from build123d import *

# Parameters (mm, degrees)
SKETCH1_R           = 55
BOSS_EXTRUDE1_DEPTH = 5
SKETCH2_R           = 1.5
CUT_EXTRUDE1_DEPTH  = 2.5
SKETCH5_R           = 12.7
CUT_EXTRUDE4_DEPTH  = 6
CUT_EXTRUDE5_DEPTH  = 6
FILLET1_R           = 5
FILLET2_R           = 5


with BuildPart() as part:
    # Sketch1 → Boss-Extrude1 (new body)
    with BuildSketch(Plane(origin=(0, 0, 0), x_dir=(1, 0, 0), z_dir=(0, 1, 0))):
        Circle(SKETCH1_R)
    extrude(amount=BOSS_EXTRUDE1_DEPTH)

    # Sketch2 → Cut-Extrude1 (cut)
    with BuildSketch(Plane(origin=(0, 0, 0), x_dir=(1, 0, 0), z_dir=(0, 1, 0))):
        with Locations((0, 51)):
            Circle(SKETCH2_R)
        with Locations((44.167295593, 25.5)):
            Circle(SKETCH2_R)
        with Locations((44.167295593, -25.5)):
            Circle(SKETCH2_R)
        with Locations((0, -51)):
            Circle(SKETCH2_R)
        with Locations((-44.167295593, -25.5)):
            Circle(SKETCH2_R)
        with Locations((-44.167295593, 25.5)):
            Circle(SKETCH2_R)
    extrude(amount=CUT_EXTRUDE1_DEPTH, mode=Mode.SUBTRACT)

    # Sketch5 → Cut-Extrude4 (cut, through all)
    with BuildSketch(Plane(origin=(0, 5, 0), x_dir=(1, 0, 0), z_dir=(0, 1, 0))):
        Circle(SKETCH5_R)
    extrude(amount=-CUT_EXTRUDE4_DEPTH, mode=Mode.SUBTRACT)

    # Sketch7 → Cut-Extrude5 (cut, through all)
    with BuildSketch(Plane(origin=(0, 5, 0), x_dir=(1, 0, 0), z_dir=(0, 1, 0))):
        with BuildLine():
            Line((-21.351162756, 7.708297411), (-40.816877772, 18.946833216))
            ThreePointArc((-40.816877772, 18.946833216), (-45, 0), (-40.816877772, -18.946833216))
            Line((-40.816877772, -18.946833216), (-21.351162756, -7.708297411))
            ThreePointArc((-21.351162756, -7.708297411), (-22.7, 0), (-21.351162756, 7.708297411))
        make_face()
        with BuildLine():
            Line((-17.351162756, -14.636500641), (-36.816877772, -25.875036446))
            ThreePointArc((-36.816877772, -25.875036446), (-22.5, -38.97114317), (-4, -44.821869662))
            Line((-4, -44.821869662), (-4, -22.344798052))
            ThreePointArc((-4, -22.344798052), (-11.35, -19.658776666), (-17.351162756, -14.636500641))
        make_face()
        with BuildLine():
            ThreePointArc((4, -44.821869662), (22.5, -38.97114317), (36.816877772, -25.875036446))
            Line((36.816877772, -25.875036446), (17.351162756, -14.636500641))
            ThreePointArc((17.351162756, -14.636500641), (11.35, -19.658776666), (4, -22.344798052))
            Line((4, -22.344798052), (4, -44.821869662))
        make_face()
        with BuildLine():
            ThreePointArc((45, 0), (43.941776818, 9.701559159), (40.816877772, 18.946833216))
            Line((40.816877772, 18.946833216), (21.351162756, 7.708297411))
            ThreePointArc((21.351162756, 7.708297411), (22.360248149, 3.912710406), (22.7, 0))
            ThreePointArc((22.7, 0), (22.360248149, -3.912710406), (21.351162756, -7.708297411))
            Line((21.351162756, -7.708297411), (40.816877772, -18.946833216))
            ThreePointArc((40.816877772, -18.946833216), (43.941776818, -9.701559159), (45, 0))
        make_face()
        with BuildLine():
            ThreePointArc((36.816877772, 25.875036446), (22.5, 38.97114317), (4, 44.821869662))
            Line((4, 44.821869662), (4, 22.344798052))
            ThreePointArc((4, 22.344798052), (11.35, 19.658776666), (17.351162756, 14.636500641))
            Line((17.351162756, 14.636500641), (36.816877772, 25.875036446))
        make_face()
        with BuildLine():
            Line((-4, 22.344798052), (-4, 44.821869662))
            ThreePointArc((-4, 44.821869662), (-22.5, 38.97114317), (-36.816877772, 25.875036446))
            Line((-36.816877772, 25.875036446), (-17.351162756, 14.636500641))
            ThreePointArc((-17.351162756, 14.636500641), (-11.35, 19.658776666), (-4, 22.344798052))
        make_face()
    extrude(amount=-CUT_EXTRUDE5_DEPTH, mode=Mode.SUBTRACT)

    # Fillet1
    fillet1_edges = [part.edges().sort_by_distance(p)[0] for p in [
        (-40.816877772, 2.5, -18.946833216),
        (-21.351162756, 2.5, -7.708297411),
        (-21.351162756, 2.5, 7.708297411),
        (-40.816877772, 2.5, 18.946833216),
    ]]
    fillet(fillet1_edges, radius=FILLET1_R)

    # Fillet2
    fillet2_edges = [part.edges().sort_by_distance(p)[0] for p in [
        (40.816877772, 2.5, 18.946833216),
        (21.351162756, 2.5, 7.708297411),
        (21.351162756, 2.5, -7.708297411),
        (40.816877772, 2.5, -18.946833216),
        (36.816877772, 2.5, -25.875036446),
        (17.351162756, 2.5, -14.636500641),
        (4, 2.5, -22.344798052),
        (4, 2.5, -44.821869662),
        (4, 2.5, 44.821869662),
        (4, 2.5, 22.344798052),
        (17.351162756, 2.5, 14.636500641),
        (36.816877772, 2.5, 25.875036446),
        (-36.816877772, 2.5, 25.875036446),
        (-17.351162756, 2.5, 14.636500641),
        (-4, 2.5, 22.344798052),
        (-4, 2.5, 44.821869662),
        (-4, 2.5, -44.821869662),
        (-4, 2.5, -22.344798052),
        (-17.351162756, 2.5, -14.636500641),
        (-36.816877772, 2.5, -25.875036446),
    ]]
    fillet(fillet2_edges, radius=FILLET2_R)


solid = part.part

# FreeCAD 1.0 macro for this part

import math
import FreeCAD as App
import Part
import Sketcher

V = App.Vector
Q = App.Units.Quantity


def edges_at(feature, points):
    """Names of the edges that pass closest to the given points."""
    edges = feature.Shape.Edges
    near = lambda p: min(range(len(edges)), key=lambda i: edges[i].distToShape(Part.Vertex(*p))[0])
    return sorted({f"Edge{near(p) + 1}" for p in points})

doc = App.newDocument("Part")
body = doc.addObject("PartDesign::Body", "Body")

sketch1 = body.newObject("Sketcher::SketchObject", "Sketch")
sketch1.AttachmentSupport = (doc.getObject("XZ_Plane"), [""])
sketch1.MapMode = "FlatFace"
sketch1.addGeometry(Part.Circle(V(0, 0, 0), V(0, 0, 1), 55), False)
sketch1.addConstraint([
    Sketcher.Constraint("Coincident", 0, 3, -1, 1),
    Sketcher.Constraint("Diameter", 0, Q("110 mm")),
])
pad1 = body.newObject("PartDesign::Pad", "Pad")
pad1.Profile = sketch1
pad1.Length = 5
pad1.Reversed = True

sketch2 = body.newObject("Sketcher::SketchObject", "Sketch001")
sketch2.AttachmentSupport = (doc.getObject("XZ_Plane"), [""])
sketch2.MapMode = "FlatFace"
sketch2.addGeometry([
    Part.Circle(V(0, -51, 0), V(0, 0, 1), 1.5),
    Part.Circle(V(44.167296, -25.5, 0), V(0, 0, 1), 1.5),
    Part.Circle(V(44.167296, 25.5, 0), V(0, 0, 1), 1.5),
    Part.Circle(V(0, 51, 0), V(0, 0, 1), 1.5),
    Part.Circle(V(-44.167296, 25.5, 0), V(0, 0, 1), 1.5),
    Part.Circle(V(-44.167296, -25.5, 0), V(0, 0, 1), 1.5),
], False)
sketch2.addConstraint([
    Sketcher.Constraint("Equal", 0, 1),
    Sketcher.Constraint("Equal", 1, 2),
    Sketcher.Constraint("Equal", 2, 3),
    Sketcher.Constraint("Equal", 3, 4),
    Sketcher.Constraint("Equal", 4, 5),
    Sketcher.Constraint("Symmetric", 0, 3, 3, 3, -1, 1),
    Sketcher.Constraint("Symmetric", 1, 3, 4, 3, -1, 1),
    Sketcher.Constraint("Symmetric", 2, 3, 5, 3, -1, 1),
    Sketcher.Constraint("Symmetric", 2, 3, 4, 3, -2),
    Sketcher.Constraint("PointOnObject", 0, 3, -2),
    Sketcher.Constraint("Diameter", 0, Q("3 mm")),
    Sketcher.Constraint("DistanceY", 0, 3, -1, 1, Q("51 mm")),
    Sketcher.Constraint("DistanceY", 1, 3, 2, 3, Q("51 mm")),
    Sketcher.Constraint("DistanceX", 4, 3, 2, 3, Q("88.334591 mm")),
])
pocket1 = body.newObject("PartDesign::Pocket", "Pocket")
pocket1.Profile = sketch2
pocket1.Length = 2.5

sketch3 = body.newObject("Sketcher::SketchObject", "Sketch002")
sketch3.AttachmentSupport = (doc.getObject("XZ_Plane"), [""])
sketch3.MapMode = "FlatFace"
sketch3.AttachmentOffset = App.Placement(V(0, 0, -5), App.Rotation())
sketch3.addGeometry(Part.Circle(V(0, 0, 0), V(0, 0, 1), 12.7), False)
sketch3.addConstraint([
    Sketcher.Constraint("Coincident", 0, 3, -1, 1),
    Sketcher.Constraint("Diameter", 0, Q("25.4 mm")),
])
pocket2 = body.newObject("PartDesign::Pocket", "Pocket001")
pocket2.Profile = sketch3
pocket2.Type = "ThroughAll"
pocket2.Reversed = True

sketch4 = body.newObject("Sketcher::SketchObject", "Sketch003")
sketch4.AttachmentSupport = (doc.getObject("XZ_Plane"), [""])
sketch4.MapMode = "FlatFace"
sketch4.AttachmentOffset = App.Placement(V(0, 0, -5), App.Rotation())
sketch4.addGeometry([
    Part.LineSegment(V(-21.351163, -7.708297, 0), V(-40.816878, -18.946833, 0)),
    Part.ArcOfCircle(Part.Circle(V(0, 0, 0), V(0, 0, 1), 45), math.radians(155.099689), math.radians(204.900311)),
    Part.LineSegment(V(-40.816878, 18.946833, 0), V(-21.351163, 7.708297, 0)),
    Part.ArcOfCircle(Part.Circle(V(0, 0, 0), V(0, 0, 1), 22.7), math.radians(160.149165), math.radians(199.850835)),
    Part.LineSegment(V(-17.351163, 14.636501, 0), V(-36.816878, 25.875036, 0)),
    Part.ArcOfCircle(Part.Circle(V(0, 0, 0), V(0, 0, 1), 45), math.radians(95.099689), math.radians(144.900311)),
    Part.LineSegment(V(-4, 44.82187, 0), V(-4, 22.344798, 0)),
    Part.ArcOfCircle(Part.Circle(V(0, 0, 0), V(0, 0, 1), 22.7), math.radians(100.149165), math.radians(139.850835)),
    Part.ArcOfCircle(Part.Circle(V(0, 0, 0), V(0, 0, 1), 45), math.radians(35.099689), math.radians(84.900311)),
    Part.LineSegment(V(36.816878, 25.875036, 0), V(17.351163, 14.636501, 0)),
    Part.ArcOfCircle(Part.Circle(V(0, 0, 0), V(0, 0, 1), 22.7), math.radians(40.149165), math.radians(79.850835)),
    Part.LineSegment(V(4, 22.344798, 0), V(4, 44.82187, 0)),
    Part.ArcOfCircle(Part.Circle(V(0, 0, 0), V(0, 0, 1), 45), math.radians(-24.900311), math.radians(0)),
    Part.LineSegment(V(40.816878, -18.946833, 0), V(21.351163, -7.708297, 0)),
    Part.ArcOfCircle(Part.Circle(V(0, 0, 0), V(0, 0, 1), 22.7), math.radians(-19.850835), math.radians(0)),
    Part.ArcOfCircle(Part.Circle(V(0, 0, 0), V(0, 0, 1), 22.7), math.radians(0), math.radians(19.850835)),
    Part.LineSegment(V(21.351163, 7.708297, 0), V(40.816878, 18.946833, 0)),
    Part.ArcOfCircle(Part.Circle(V(0, 0, 0), V(0, 0, 1), 45), math.radians(0), math.radians(24.900311)),
    Part.ArcOfCircle(Part.Circle(V(0, 0, 0), V(0, 0, 1), 45), math.radians(-84.900311), math.radians(-35.099689)),
    Part.LineSegment(V(4, -44.82187, 0), V(4, -22.344798, 0)),
    Part.ArcOfCircle(Part.Circle(V(0, 0, 0), V(0, 0, 1), 22.7), math.radians(-79.850835), math.radians(-40.149165)),
    Part.LineSegment(V(17.351163, -14.636501, 0), V(36.816878, -25.875036, 0)),
    Part.LineSegment(V(-4, -22.344798, 0), V(-4, -44.82187, 0)),
    Part.ArcOfCircle(Part.Circle(V(0, 0, 0), V(0, 0, 1), 45), math.radians(-144.900311), math.radians(-95.099689)),
    Part.LineSegment(V(-36.816878, -25.875036, 0), V(-17.351163, -14.636501, 0)),
    Part.ArcOfCircle(Part.Circle(V(0, 0, 0), V(0, 0, 1), 22.7), math.radians(-139.850835), math.radians(-100.149165)),
], False)
sketch4.addConstraint([
    Sketcher.Constraint("Coincident", 0, 2, 1, 2),
    Sketcher.Constraint("Coincident", 1, 1, 2, 1),
    Sketcher.Constraint("Coincident", 2, 2, 3, 1),
    Sketcher.Constraint("Coincident", 3, 2, 0, 1),
    Sketcher.Constraint("Coincident", 4, 2, 5, 2),
    Sketcher.Constraint("Coincident", 5, 1, 6, 1),
    Sketcher.Constraint("Coincident", 6, 2, 7, 1),
    Sketcher.Constraint("Coincident", 7, 2, 4, 1),
    Sketcher.Constraint("Coincident", 8, 1, 9, 1),
    Sketcher.Constraint("Coincident", 9, 2, 10, 1),
    Sketcher.Constraint("Coincident", 10, 2, 11, 1),
    Sketcher.Constraint("Coincident", 11, 2, 8, 2),
    Sketcher.Constraint("Coincident", 12, 1, 13, 1),
    Sketcher.Constraint("Coincident", 13, 2, 14, 1),
    Sketcher.Constraint("Tangent", 14, 2, 15, 1),
    Sketcher.Constraint("Coincident", 15, 2, 16, 1),
    Sketcher.Constraint("Coincident", 16, 2, 17, 2),
    Sketcher.Constraint("Tangent", 17, 1, 12, 2),
    Sketcher.Constraint("Coincident", 18, 1, 19, 1),
    Sketcher.Constraint("Coincident", 19, 2, 20, 1),
    Sketcher.Constraint("Coincident", 20, 2, 21, 1),
    Sketcher.Constraint("Coincident", 21, 2, 18, 2),
    Sketcher.Constraint("Coincident", 22, 2, 23, 2),
    Sketcher.Constraint("Coincident", 23, 1, 24, 1),
    Sketcher.Constraint("Coincident", 24, 2, 25, 1),
    Sketcher.Constraint("Coincident", 25, 2, 22, 1),
    Sketcher.Constraint("Vertical", 6),
    Sketcher.Constraint("Vertical", 11),
    Sketcher.Constraint("Vertical", 19),
    Sketcher.Constraint("Vertical", 22),
    Sketcher.Constraint("Coincident", 1, 3, -1, 1),
    Sketcher.Constraint("Coincident", 3, 3, -1, 1),
    Sketcher.Constraint("Coincident", 5, 3, -1, 1),
    Sketcher.Constraint("Coincident", 7, 3, -1, 1),
    Sketcher.Constraint("Coincident", 8, 3, -1, 1),
    Sketcher.Constraint("Coincident", 10, 3, -1, 1),
    Sketcher.Constraint("Coincident", 12, 3, -1, 1),
    Sketcher.Constraint("Coincident", 14, 3, -1, 1),
    Sketcher.Constraint("Coincident", 18, 3, -1, 1),
    Sketcher.Constraint("Coincident", 20, 3, -1, 1),
    Sketcher.Constraint("Coincident", 23, 3, -1, 1),
    Sketcher.Constraint("Coincident", 25, 3, -1, 1),
    Sketcher.Constraint("Equal", 1, 5),
    Sketcher.Constraint("Equal", 3, 7),
    Sketcher.Constraint("Equal", 5, 8),
    Sketcher.Constraint("Equal", 7, 10),
    Sketcher.Constraint("Equal", 8, 12),
    Sketcher.Constraint("Equal", 10, 14),
    Sketcher.Constraint("Equal", 14, 15),
    Sketcher.Constraint("Equal", 12, 17),
    Sketcher.Constraint("Equal", 17, 18),
    Sketcher.Constraint("Equal", 15, 20),
    Sketcher.Constraint("Equal", 18, 23),
    Sketcher.Constraint("Equal", 20, 25),
    Sketcher.Constraint("PointOnObject", 14, 2, -1),
    Sketcher.Constraint("PointOnObject", 17, 1, -1),
    Sketcher.Constraint("Parallel", 2, 4),
    Sketcher.Constraint("Parallel", 0, 9),
    Sketcher.Constraint("Parallel", 4, 13),
    Sketcher.Constraint("Parallel", 9, 16),
    Sketcher.Constraint("Parallel", 13, 21),
    Sketcher.Constraint("Parallel", 16, 24),
    Sketcher.Constraint("Horizontal", 4, 2, 8, 1),
    Sketcher.Constraint("Horizontal", 7, 2, 9, 2),
    Sketcher.Constraint("Horizontal", 6, 2, 10, 2),
    Sketcher.Constraint("Horizontal", 0, 2, 12, 1),
    Sketcher.Constraint("Horizontal", 2, 2, 15, 2),
    Sketcher.Constraint("Horizontal", 18, 1, 22, 2),
    Sketcher.Constraint("Horizontal", 21, 2, 23, 1),
    Sketcher.Constraint("Vertical", 0, 2, 1, 1),
    Sketcher.Constraint("Vertical", 11, 2, 18, 1),
    Sketcher.Constraint("Vertical", 9, 2, 20, 2),
    Sketcher.Constraint("Equal", 2, 4),
    Sketcher.Constraint("Radius", 1, Q("45 mm")),
    Sketcher.Constraint("Radius", 3, Q("22.7 mm")),
    Sketcher.Constraint("Angle", 0, Q("-150 deg")),
    Sketcher.Constraint("DistanceX", 5, 1, -1, 1, Q("4 mm")),
    Sketcher.Constraint("DistanceX", 1, 1, 4, 2, Q("4 mm")),
])
pocket3 = body.newObject("PartDesign::Pocket", "Pocket002")
pocket3.Profile = sketch4
pocket3.Type = "ThroughAll"
pocket3.Reversed = True
doc.recompute()

fillet = body.newObject("PartDesign::Fillet", "Fillet")
fillet.Base = (pocket3, edges_at(pocket3, [
    (-40.817, 2.5, -18.947),
    (-21.351, 2.5, -7.708),
    (-21.351, 2.5, 7.708),
    (-40.817, 2.5, 18.947),
]))
fillet.Radius = 5
doc.recompute()

fillet2 = body.newObject("PartDesign::Fillet", "Fillet001")
fillet2.Base = (fillet, edges_at(fillet, [
    (40.817, 2.5, 18.947),
    (21.351, 2.5, 7.708),
    (21.351, 2.5, -7.708),
    (40.817, 2.5, -18.947),
    (36.817, 2.5, -25.875),
    (17.351, 2.5, -14.637),
    (4, 2.5, -22.345),
    (4, 2.5, -44.822),
    (4, 2.5, 44.822),
    (4, 2.5, 22.345),
    (17.351, 2.5, 14.637),
    (36.817, 2.5, 25.875),
    (-36.817, 2.5, 25.875),
    (-17.351, 2.5, 14.637),
    (-4, 2.5, 22.345),
    (-4, 2.5, 44.822),
    (-4, 2.5, -44.822),
    (-4, 2.5, -22.345),
    (-17.351, 2.5, -14.637),
    (-36.817, 2.5, -25.875),
]))
fillet2.Radius = 5

doc.recompute()
